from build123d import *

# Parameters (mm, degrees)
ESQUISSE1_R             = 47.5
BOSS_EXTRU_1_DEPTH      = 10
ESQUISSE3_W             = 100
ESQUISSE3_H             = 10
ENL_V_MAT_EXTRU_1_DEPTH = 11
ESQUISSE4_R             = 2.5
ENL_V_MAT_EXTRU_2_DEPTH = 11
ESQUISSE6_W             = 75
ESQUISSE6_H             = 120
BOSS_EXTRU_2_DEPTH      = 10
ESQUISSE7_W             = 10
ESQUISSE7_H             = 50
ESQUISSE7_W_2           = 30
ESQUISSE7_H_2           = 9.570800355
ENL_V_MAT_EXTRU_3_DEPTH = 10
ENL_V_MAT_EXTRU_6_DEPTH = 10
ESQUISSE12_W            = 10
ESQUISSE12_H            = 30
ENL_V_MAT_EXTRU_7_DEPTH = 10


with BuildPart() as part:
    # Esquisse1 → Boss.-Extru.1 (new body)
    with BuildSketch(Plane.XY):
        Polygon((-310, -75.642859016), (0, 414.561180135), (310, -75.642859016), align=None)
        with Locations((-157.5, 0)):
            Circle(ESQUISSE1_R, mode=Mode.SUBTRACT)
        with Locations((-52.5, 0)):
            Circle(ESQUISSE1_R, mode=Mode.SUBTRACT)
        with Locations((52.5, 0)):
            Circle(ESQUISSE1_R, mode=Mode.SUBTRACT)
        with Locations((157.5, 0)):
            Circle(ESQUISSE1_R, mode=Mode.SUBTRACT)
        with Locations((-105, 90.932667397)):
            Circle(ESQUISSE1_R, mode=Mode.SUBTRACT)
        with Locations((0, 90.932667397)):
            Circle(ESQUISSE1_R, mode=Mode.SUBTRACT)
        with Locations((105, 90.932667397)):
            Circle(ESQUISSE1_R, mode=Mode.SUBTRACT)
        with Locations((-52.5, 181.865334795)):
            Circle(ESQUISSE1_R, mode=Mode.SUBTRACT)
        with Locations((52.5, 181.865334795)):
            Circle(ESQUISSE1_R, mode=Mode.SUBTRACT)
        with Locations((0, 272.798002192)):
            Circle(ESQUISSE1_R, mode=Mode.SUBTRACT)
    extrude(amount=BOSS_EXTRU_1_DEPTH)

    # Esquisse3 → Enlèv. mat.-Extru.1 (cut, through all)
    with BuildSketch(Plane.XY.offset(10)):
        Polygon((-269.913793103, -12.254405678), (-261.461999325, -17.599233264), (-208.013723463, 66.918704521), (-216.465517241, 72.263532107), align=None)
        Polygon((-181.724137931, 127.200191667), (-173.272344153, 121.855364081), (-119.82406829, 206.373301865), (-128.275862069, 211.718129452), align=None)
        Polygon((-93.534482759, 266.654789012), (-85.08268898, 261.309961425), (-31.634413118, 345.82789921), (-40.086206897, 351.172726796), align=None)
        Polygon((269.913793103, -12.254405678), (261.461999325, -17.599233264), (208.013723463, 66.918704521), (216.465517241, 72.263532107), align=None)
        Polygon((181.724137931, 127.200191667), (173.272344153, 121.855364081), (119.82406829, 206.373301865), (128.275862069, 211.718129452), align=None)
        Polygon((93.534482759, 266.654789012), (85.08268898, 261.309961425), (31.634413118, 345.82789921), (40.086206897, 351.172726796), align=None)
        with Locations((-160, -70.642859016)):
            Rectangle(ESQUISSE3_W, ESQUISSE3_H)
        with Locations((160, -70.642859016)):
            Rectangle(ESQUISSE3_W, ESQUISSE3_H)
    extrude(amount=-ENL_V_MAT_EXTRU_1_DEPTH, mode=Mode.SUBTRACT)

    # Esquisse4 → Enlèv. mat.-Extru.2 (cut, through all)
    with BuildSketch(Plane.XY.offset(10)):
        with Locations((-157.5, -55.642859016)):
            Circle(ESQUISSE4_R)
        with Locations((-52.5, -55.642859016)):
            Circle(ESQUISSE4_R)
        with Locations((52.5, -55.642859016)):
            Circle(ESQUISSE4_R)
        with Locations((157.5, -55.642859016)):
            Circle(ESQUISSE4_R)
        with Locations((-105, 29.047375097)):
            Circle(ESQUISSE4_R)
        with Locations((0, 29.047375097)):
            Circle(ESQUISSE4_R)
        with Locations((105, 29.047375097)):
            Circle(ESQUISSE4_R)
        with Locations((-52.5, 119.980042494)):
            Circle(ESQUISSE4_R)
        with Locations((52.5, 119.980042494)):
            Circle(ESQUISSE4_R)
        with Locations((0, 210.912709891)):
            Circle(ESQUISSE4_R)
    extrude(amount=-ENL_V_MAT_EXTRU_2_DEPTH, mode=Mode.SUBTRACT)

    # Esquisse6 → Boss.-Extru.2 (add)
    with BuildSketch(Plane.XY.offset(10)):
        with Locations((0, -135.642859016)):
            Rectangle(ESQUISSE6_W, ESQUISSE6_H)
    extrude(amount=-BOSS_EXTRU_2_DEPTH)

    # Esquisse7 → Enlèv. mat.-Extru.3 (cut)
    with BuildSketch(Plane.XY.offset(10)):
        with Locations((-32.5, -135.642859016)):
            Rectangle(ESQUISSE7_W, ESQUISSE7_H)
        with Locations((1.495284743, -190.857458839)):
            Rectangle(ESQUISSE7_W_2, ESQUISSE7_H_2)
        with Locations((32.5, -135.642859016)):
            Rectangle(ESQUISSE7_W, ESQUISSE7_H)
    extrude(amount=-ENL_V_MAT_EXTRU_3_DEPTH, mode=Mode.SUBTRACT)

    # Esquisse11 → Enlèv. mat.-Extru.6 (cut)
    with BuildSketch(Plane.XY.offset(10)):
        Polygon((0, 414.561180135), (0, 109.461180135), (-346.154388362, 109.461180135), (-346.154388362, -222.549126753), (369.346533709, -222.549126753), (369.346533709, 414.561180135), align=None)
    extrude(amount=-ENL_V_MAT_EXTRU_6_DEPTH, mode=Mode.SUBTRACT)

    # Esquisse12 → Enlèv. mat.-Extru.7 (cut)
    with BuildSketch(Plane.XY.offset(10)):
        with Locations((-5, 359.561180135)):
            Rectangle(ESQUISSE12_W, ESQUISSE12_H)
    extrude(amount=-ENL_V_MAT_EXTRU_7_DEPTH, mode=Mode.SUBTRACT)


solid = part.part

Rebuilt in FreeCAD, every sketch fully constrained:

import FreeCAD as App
import Part
import Sketcher


def add_polygon(sketch, points):
    """Adds a closed chain of lines whose ends are joined by coincident constraints."""
    first, n = sketch.GeometryCount, len(points)
    for a, b in zip(points, points[1:] + points[:1]):
        sketch.addGeometry(Part.LineSegment(App.Vector(*a, 0), App.Vector(*b, 0)), False)
    for i in range(n):
        sketch.addConstraint(Sketcher.Constraint("Coincident", first + i, 2, first + (i + 1) % n, 1))

doc = App.newDocument("Part")
body = doc.addObject("PartDesign::Body", "Body")

# Sketch on XY plane
sketch1 = body.newObject("Sketcher::SketchObject", "Sketch")
sketch1.AttachmentSupport = (doc.getObject("XY_Plane"), [""])
sketch1.MapMode = "FlatFace"
add_polygon(sketch1, [(0, 415), (-310, -76), (310, -76)])  # lines 0-2
sketch1.addGeometry(Part.Circle(App.Vector(158, 0, 0), App.Vector(0, 0, 1), 48), False)  # 3
sketch1.addGeometry(Part.Circle(App.Vector(52, 0, 0), App.Vector(0, 0, 1), 48), False)  # 4
sketch1.addGeometry(Part.Circle(App.Vector(105, 91, 0), App.Vector(0, 0, 1), 48), False)  # 5
sketch1.addGeometry(Part.Circle(App.Vector(-52, 0, 0), App.Vector(0, 0, 1), 48), False)  # 6
sketch1.addGeometry(Part.Circle(App.Vector(-158, 0, 0), App.Vector(0, 0, 1), 48), False)  # 7
sketch1.addGeometry(Part.Circle(App.Vector(0, 91, 0), App.Vector(0, 0, 1), 48), False)  # 8
sketch1.addGeometry(Part.Circle(App.Vector(-105, 91, 0), App.Vector(0, 0, 1), 48), False)  # 9
sketch1.addGeometry(Part.Circle(App.Vector(52, 182, 0), App.Vector(0, 0, 1), 48), False)  # 10
sketch1.addGeometry(Part.Circle(App.Vector(-52, 182, 0), App.Vector(0, 0, 1), 48), False)  # 11
sketch1.addGeometry(Part.Circle(App.Vector(0, 273, 0), App.Vector(0, 0, 1), 48), False)  # 12
sketch1.addConstraint([
    Sketcher.Constraint("Horizontal", 1),
    Sketcher.Constraint("Equal", 3, 4),
    Sketcher.Constraint("Equal", 4, 5),
    Sketcher.Constraint("Equal", 5, 6),
    Sketcher.Constraint("Equal", 6, 7),
    Sketcher.Constraint("Equal", 7, 8),
    Sketcher.Constraint("Equal", 8, 9),
    Sketcher.Constraint("Equal", 9, 10),
    Sketcher.Constraint("Equal", 10, 11),
    Sketcher.Constraint("Equal", 11, 12),
    Sketcher.Constraint("Symmetric", 4, 3, 6, 3, -1, 1),
    Sketcher.Constraint("Symmetric", 3, 3, 7, 3, -1, 1),
    Sketcher.Constraint("Symmetric", 5, 3, 9, 3, -2),
    Sketcher.Constraint("Symmetric", 10, 3, 11, 3, -2),
    Sketcher.Constraint("PointOnObject", 3, 3, -1),
    Sketcher.Constraint("PointOnObject", 4, 3, -1),
    Sketcher.Constraint("PointOnObject", 8, 3, -2),
    Sketcher.Constraint("PointOnObject", 12, 3, -2),
    Sketcher.Constraint("PointOnObject", 2, 2, -2),
    Sketcher.Constraint("Horizontal", 5, 3, 8, 3),
    Sketcher.Constraint("Vertical", 4, 3, 10, 3),
    Sketcher.Constraint("Equal", 0, 2),
    Sketcher.Constraint("Diameter", 3, 95.0),
    Sketcher.Constraint("DistanceX", 1, 1, 1, 2, 620.0),
    Sketcher.Constraint("Distance", 0, 580.0),
    Sketcher.Constraint("DistanceX", -1, 1, 5, 3, 105.0),
    Sketcher.Constraint("DistanceX", 4, 3, 3, 3, 105.0),
    Sketcher.Constraint("DistanceX", 6, 3, 4, 3, 105.0),
    Sketcher.Constraint("DistanceY", 0, 2, -1, 1, 75.642859),
    Sketcher.Constraint("DistanceY", -1, 1, 5, 3, 90.932667),
    Sketcher.Constraint("DistanceY", -1, 1, 10, 3, 181.865335),
    Sketcher.Constraint("DistanceY", -1, 1, 12, 3, 272.798002),
])
pad1 = body.newObject("PartDesign::Pad", "Pad")
pad1.Profile = sketch1
pad1.Length = 10

# Sketch on XY plane
sketch2 = body.newObject("Sketcher::SketchObject", "Sketch001")
sketch2.AttachmentSupport = (doc.getObject("XY_Plane"), [""])
sketch2.MapMode = "FlatFace"
sketch2.AttachmentOffset = App.Placement(App.Vector(0, 0, 10), App.Rotation())
add_polygon(sketch2, [(-270, -12), (-261, -18), (-208, 67), (-216, 72)])  # lines 0-3
add_polygon(sketch2, [(-182, 127), (-173, 122), (-120, 206), (-128, 212)])  # lines 4-7
add_polygon(sketch2, [(-94, 267), (-85, 261), (-32, 346), (-40, 351)])  # lines 8-11
add_polygon(sketch2, [(261, -18), (270, -12), (216, 72), (208, 67)])  # lines 12-15
add_polygon(sketch2, [(173, 122), (182, 127), (128, 212), (120, 206)])  # lines 16-19
add_polygon(sketch2, [(85, 261), (94, 267), (40, 351), (32, 346)])  # lines 20-23
add_polygon(sketch2, [(-210, -66), (-210, -76), (-110, -76), (-110, -66)])  # lines 24-27
add_polygon(sketch2, [(110, -66), (110, -76), (210, -76), (210, -66)])  # lines 28-31
sketch2.addConstraint([
    Sketcher.Constraint("Vertical", 24),
    Sketcher.Constraint("Horizontal", 25),
    Sketcher.Constraint("Vertical", 26),
    Sketcher.Constraint("Horizontal", 27),
    Sketcher.Constraint("Vertical", 28),
    Sketcher.Constraint("Horizontal", 29),
    Sketcher.Constraint("Vertical", 30),
    Sketcher.Constraint("Horizontal", 31),
    Sketcher.Constraint("Symmetric", 3, 2, 12, 2, -2),
    Sketcher.Constraint("Symmetric", 2, 2, 13, 2, -2),
    Sketcher.Constraint("Symmetric", 1, 2, 14, 2, -2),
    Sketcher.Constraint("Symmetric", 0, 2, 15, 2, -2),
    Sketcher.Constraint("Symmetric", 7, 2, 16, 2, -2),
    Sketcher.Constraint("Symmetric", 6, 2, 17, 2, -2),
    Sketcher.Constraint("Symmetric", 5, 2, 18, 2, -2),
    Sketcher.Constraint("Symmetric", 4, 2, 19, 2, -2),
    Sketcher.Constraint("Symmetric", 11, 2, 20, 2, -2),
    Sketcher.Constraint("Symmetric", 10, 2, 21, 2, -2),
    Sketcher.Constraint("Symmetric", 9, 2, 22, 2, -2),
    Sketcher.Constraint("Symmetric", 8, 2, 23, 2, -2),
    Sketcher.Constraint("Symmetric", 25, 2, 28, 2, -2),
    Sketcher.Constraint("Symmetric", 27, 2, 30, 2, -2),
    Sketcher.Constraint("Perpendicular", 0, 1),
    Sketcher.Constraint("Perpendicular", 1, 2),
    Sketcher.Constraint("Perpendicular", 2, 3),
    Sketcher.Constraint("Perpendicular", 3, 4),
    Sketcher.Constraint("Perpendicular", 4, 5),
    Sketcher.Constraint("Perpendicular", 5, 6),
    Sketcher.Constraint("Perpendicular", 6, 7),
    Sketcher.Constraint("Perpendicular", 7, 8),
    Sketcher.Constraint("Perpendicular", 8, 9),
    Sketcher.Constraint("Perpendicular", 9, 10),
    Sketcher.Constraint("Perpendicular", 10, 11),
    Sketcher.Constraint("Equal", 2, 4),
    Sketcher.Constraint("Equal", 3, 5),
    Sketcher.Constraint("Equal", 6, 8),
    Sketcher.Constraint("Equal", 7, 9),
    Sketcher.Constraint("DistanceX", 25, 1, 25, 2, 100.0),
    Sketcher.Constraint("DistanceY", 24, 2, 24, 1, 10.0),
    Sketcher.Constraint("Distance", 0, 10.0),
    Sketcher.Constraint("Distance", 1, 100.0),
    Sketcher.Constraint("DistanceX", 24, 2, -1, 1, 210.0),
    Sketcher.Constraint("DistanceX", 11, 2, 13, 2, 310.0),
    Sketcher.Constraint("DistanceX", 0, 2, -1, 1, 261.461999),
    Sketcher.Constraint("DistanceY", -1, 1, 5, 2, 206.373302),
    Sketcher.Constraint("DistanceY", -1, 1, 9, 2, 345.827899),
    Sketcher.Constraint("DistanceX", 5, 2, -1, 1, 119.824068),
    Sketcher.Constraint("DistanceY", -1, 1, 6, 2, 211.718129),
    Sketcher.Constraint("DistanceY", 24, 2, -1, 1, 75.642859),
    Sketcher.Constraint("DistanceY", 1, 2, 4, 2, 54.93666),
])
pocket1 = body.newObject("PartDesign::Pocket", "Pocket")
pocket1.Profile = sketch2
pocket1.Type = "ThroughAll"

# Sketch on XY plane
sketch3 = body.newObject("Sketcher::SketchObject", "Sketch002")
sketch3.AttachmentSupport = (doc.getObject("XY_Plane"), [""])
sketch3.MapMode = "FlatFace"
sketch3.AttachmentOffset = App.Placement(App.Vector(0, 0, 10), App.Rotation())
sketch3.addGeometry([
    Part.Circle(App.Vector(-157.5, -55.6, 0), App.Vector(0, 0, 1), 2.5),  # 0
    Part.Circle(App.Vector(-52.5, -55.6, 0), App.Vector(0, 0, 1), 2.5),  # 1
    Part.Circle(App.Vector(52.5, -55.6, 0), App.Vector(0, 0, 1), 2.5),  # 2
    Part.Circle(App.Vector(157.5, -55.6, 0), App.Vector(0, 0, 1), 2.5),  # 3
    Part.Circle(App.Vector(-105, 29, 0), App.Vector(0, 0, 1), 2.5),  # 4
    Part.Circle(App.Vector(0, 29, 0), App.Vector(0, 0, 1), 2.5),  # 5
    Part.Circle(App.Vector(105, 29, 0), App.Vector(0, 0, 1), 2.5),  # 6
    Part.Circle(App.Vector(-52.5, 120, 0), App.Vector(0, 0, 1), 2.5),  # 7
    Part.Circle(App.Vector(52.5, 120, 0), App.Vector(0, 0, 1), 2.5),  # 8
    Part.Circle(App.Vector(0, 210.9, 0), App.Vector(0, 0, 1), 2.5),  # 9
], False)
sketch3.addConstraint([
    Sketcher.Constraint("Equal", 0, 1),
    Sketcher.Constraint("Equal", 1, 2),
    Sketcher.Constraint("Equal", 2, 3),
    Sketcher.Constraint("Equal", 3, 4),
    Sketcher.Constraint("Equal", 4, 5),
    Sketcher.Constraint("Equal", 5, 6),
    Sketcher.Constraint("Equal", 6, 7),
    Sketcher.Constraint("Equal", 7, 8),
    Sketcher.Constraint("Equal", 8, 9),
    Sketcher.Constraint("Symmetric", 1, 3, 2, 3, -2),
    Sketcher.Constraint("Symmetric", 0, 3, 3, 3, -2),
    Sketcher.Constraint("Symmetric", 4, 3, 6, 3, -2),
    Sketcher.Constraint("Symmetric", 7, 3, 8, 3, -2),
    Sketcher.Constraint("PointOnObject", 5, 3, -2),
    Sketcher.Constraint("PointOnObject", 9, 3, -2),
    Sketcher.Constraint("Horizontal", 0, 3, 1, 3),
    Sketcher.Constraint("Horizontal", 4, 3, 5, 3),
    Sketcher.Constraint("Vertical", 1, 3, 7, 3),
    Sketcher.Constraint("Diameter", 0, 5.0),
    Sketcher.Constraint("DistanceX", 4, 3, -1, 1, 105.0),
    Sketcher.Constraint("DistanceX", 0, 3, 1, 3, 105.0),
    Sketcher.Constraint("DistanceX", 1, 3, 2, 3, 105.0),
    Sketcher.Constraint("DistanceY", 1, 3, 7, 3, 175.622902),
    Sketcher.Constraint("DistanceY", 0, 3, -1, 1, 55.642859),
    Sketcher.Constraint("DistanceY", -1, 1, 9, 3, 210.91271),
    Sketcher.Constraint("DistanceY", -1, 1, 4, 3, 29.047375),
])
pocket2 = body.newObject("PartDesign::Pocket", "Pocket001")
pocket2.Profile = sketch3
pocket2.Type = "ThroughAll"

# Sketch on XY plane
sketch4 = body.newObject("Sketcher::SketchObject", "Sketch003")
sketch4.AttachmentSupport = (doc.getObject("XY_Plane"), [""])
sketch4.MapMode = "FlatFace"
sketch4.AttachmentOffset = App.Placement(App.Vector(0, 0, 10), App.Rotation())
add_polygon(sketch4, [(-38, -76), (-38, -196), (38, -196), (38, -76)])  # lines 0-3
sketch4.addConstraint([
    Sketcher.Constraint("Vertical", 0),
    Sketcher.Constraint("Horizontal", 1),
    Sketcher.Constraint("Vertical", 2),
    Sketcher.Constraint("Horizontal", 3),
    Sketcher.Constraint("DistanceX", 1, 1, 1, 2, 75.0),
    Sketcher.Constraint("DistanceY", 0, 2, 0, 1, 120.0),
    Sketcher.Constraint("DistanceX", 0, 2, -1, 1, 37.5),
    Sketcher.Constraint("DistanceY", 0, 2, -1, 1, 195.642859),
])
pad2 = body.newObject("PartDesign::Pad", "Pad001")
pad2.Profile = sketch4
pad2.Length = 10
pad2.Reversed = True

# Sketch on XY plane
sketch5 = body.newObject("Sketcher::SketchObject", "Sketch004")
sketch5.AttachmentSupport = (doc.getObject("XY_Plane"), [""])
sketch5.MapMode = "FlatFace"
sketch5.AttachmentOffset = App.Placement(App.Vector(0, 0, 10), App.Rotation())
add_polygon(sketch5, [(-38, -111), (-38, -161), (-28, -161), (-28, -111)])  # lines 0-3
add_polygon(sketch5, [(-14, -186), (-14, -196), (16, -196), (16, -186)])  # lines 4-7
add_polygon(sketch5, [(28, -111), (28, -161), (38, -161), (38, -111)])  # lines 8-11
sketch5.addConstraint([
    Sketcher.Constraint("Vertical", 0),
    Sketcher.Constraint("Horizontal", 1),
    Sketcher.Constraint("Vertical", 2),
    Sketcher.Constraint("Horizontal", 3),
    Sketcher.Constraint("Vertical", 4),
    Sketcher.Constraint("Horizontal", 5),
    Sketcher.Constraint("Vertical", 6),
    Sketcher.Constraint("Horizontal", 7),
    Sketcher.Constraint("Vertical", 8),
    Sketcher.Constraint("Horizontal", 9),
    Sketcher.Constraint("Vertical", 10),
    Sketcher.Constraint("Horizontal", 11),
    Sketcher.Constraint("Symmetric", 1, 2, 8, 2, -2),
    Sketcher.Constraint("Symmetric", 3, 2, 10, 2, -2),
    Sketcher.Constraint("DistanceX", 1, 1, 1, 2, 10.0),
    Sketcher.Constraint("DistanceX", 5, 1, 5, 2, 30.0),
    Sketcher.Constraint("DistanceY", 0, 2, 0, 1, 50.0),
    Sketcher.Constraint("DistanceY", 4, 2, 1, 2, 35.0),
    Sketcher.Constraint("DistanceX", 1, 2, 8, 2, 55.0),
    Sketcher.Constraint("DistanceY", 4, 2, 4, 1, 9.5708),
    Sketcher.Constraint("DistanceY", 0, 2, -1, 1, 160.642859),
    Sketcher.Constraint("DistanceX", 4, 2, -1, 1, 13.504715),
])
pocket3 = body.newObject("PartDesign::Pocket", "Pocket002")
pocket3.Profile = sketch5
pocket3.Length = 10

# Sketch on XY plane
sketch6 = body.newObject("Sketcher::SketchObject", "Sketch005")
sketch6.AttachmentSupport = (doc.getObject("XY_Plane"), [""])
sketch6.MapMode = "FlatFace"
sketch6.AttachmentOffset = App.Placement(App.Vector(0, 0, 10), App.Rotation())
add_polygon(sketch6, [(0, 415), (0, 109), (-346, 109), (-346, -223), (369, -223), (369, 415)])  # lines 0-5
sketch6.addConstraint([
    Sketcher.Constraint("Vertical", 0),
    Sketcher.Constraint("Horizontal", 1),
    Sketcher.Constraint("Vertical", 2),
    Sketcher.Constraint("Horizontal", 3),
    Sketcher.Constraint("Vertical", 4),
    Sketcher.Constraint("Horizontal", 5),
    Sketcher.Constraint("PointOnObject", 0, 2, -2),
    Sketcher.Constraint("DistanceY", 0, 2, 0, 1, 305.1),
    Sketcher.Constraint("DistanceX", 1, 2, 1, 1, 346.154388),
    Sketcher.Constraint("DistanceX", 3, 1, 3, 2, 715.500922),
    Sketcher.Constraint("DistanceY", 2, 2, 2, 1, 332.010307),
    Sketcher.Constraint("DistanceY", -1, 1, 0, 2, 109.46118),
])
pocket4 = body.newObject("PartDesign::Pocket", "Pocket003")
pocket4.Profile = sketch6
pocket4.Length = 10

# Sketch on XY plane
sketch7 = body.newObject("Sketcher::SketchObject", "Sketch006")
sketch7.AttachmentSupport = (doc.getObject("XY_Plane"), [""])
sketch7.MapMode = "FlatFace"
sketch7.AttachmentOffset = App.Placement(App.Vector(0, 0, 10), App.Rotation())
add_polygon(sketch7, [(-10, 375), (-10, 345), (0, 345), (0, 375)])  # lines 0-3
sketch7.addConstraint([
    Sketcher.Constraint("Vertical", 0),
    Sketcher.Constraint("Horizontal", 1),
    Sketcher.Constraint("Vertical", 2),
    Sketcher.Constraint("Horizontal", 3),
    Sketcher.Constraint("PointOnObject", 1, 2, -2),
    Sketcher.Constraint("DistanceX", 1, 1, 1, 2, 10.0),
    Sketcher.Constraint("DistanceY", 0, 2, 0, 1, 30.0),
    Sketcher.Constraint("DistanceY", -1, 1, 0, 2, 344.56118),
])
pocket5 = body.newObject("PartDesign::Pocket", "Pocket004")
pocket5.Profile = sketch7
pocket5.Length = 10

doc.recompute()
